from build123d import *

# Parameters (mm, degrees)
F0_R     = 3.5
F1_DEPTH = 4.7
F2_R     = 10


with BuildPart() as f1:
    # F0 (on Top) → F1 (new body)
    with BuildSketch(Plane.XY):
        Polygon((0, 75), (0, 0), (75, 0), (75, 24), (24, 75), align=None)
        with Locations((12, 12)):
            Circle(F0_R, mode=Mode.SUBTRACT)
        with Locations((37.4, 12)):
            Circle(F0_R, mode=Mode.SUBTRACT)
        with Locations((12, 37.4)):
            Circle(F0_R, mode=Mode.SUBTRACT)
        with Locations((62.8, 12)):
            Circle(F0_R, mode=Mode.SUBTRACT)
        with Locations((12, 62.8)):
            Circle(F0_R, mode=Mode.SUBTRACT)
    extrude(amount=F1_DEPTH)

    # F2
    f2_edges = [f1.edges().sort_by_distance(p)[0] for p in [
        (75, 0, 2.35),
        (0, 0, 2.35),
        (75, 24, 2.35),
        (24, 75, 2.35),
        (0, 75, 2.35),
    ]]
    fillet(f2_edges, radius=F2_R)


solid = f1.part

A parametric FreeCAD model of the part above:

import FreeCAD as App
import Part
import Sketcher
from FreeCAD import Vector
Q = App.Units.Quantity


def edges_at(feature, points):
    """Names of the edges that pass closest to the given points."""
    edges = feature.Shape.Edges
    near = lambda p: min(range(len(edges)), key=lambda i: edges[i].distToShape(Part.Vertex(*p))[0])
    return sorted({f"Edge{near(p) + 1}" for p in points})


def add_polygon(sketch, points):
    """Adds a closed chain of lines whose ends are joined by coincident constraints."""
    first, n = sketch.GeometryCount, len(points)
    for a, b in zip(points, points[1:] + points[:1]):
        sketch.addGeometry(Part.LineSegment(App.Vector(*a, 0), App.Vector(*b, 0)), False)
    for i in range(n):
        sketch.addConstraint(Sketcher.Constraint("Coincident", first + i, 2, first + (i + 1) % n, 1))

doc = App.newDocument("Part")
body = doc.addObject("PartDesign::Body", "Body")

# Sketch on XY plane
sketch1 = body.newObject("Sketcher::SketchObject", "Sketch")
sketch1.AttachmentSupport = (doc.getObject("XY_Plane"), [""])
sketch1.MapMode = "FlatFace"
add_polygon(sketch1, [(0, 75), (0, 0), (75, 0), (75, 24), (24, 75)])  # lines 0-4
sketch1.addGeometry(Part.Circle(Vector(12, 12, 0), Vector(0, 0, 1), 3.5), False)  # 5
sketch1.addGeometry(Part.Circle(Vector(37.4, 12, 0), Vector(0, 0, 1), 3.5), False)  # 6
sketch1.addGeometry(Part.Circle(Vector(62.8, 12, 0), Vector(0, 0, 1), 3.5), False)  # 7
sketch1.addGeometry(Part.Circle(Vector(12, 37.4, 0), Vector(0, 0, 1), 3.5), False)  # 8
sketch1.addGeometry(Part.Circle(Vector(12, 62.8, 0), Vector(0, 0, 1), 3.5), False)  # 9
sketch1.addConstraint([
    Sketcher.Constraint("Vertical", 0),
    Sketcher.Constraint("Horizontal", 1),
    Sketcher.Constraint("Vertical", 2),
    Sketcher.Constraint("Horizontal", 4),
    Sketcher.Constraint("Coincident", 0, 2, -1, 1),
    Sketcher.Constraint("Equal", 5, 6),
    Sketcher.Constraint("Equal", 6, 7),
    Sketcher.Constraint("Equal", 7, 8),
    Sketcher.Constraint("Equal", 8, 9),
    Sketcher.Constraint("Horizontal", 5, 3, 6, 3),
    Sketcher.Constraint("Horizontal", 6, 3, 7, 3),
    Sketcher.Constraint("Vertical", 5, 3, 8, 3),
    Sketcher.Constraint("Vertical", 8, 3, 9, 3),
    Sketcher.Constraint("Equal", 1, 0),
    Sketcher.Constraint("Equal", 4, 2),
    Sketcher.Constraint("Diameter", 5, Q("7 mm")),
    Sketcher.Constraint("DistanceX", 1, 1, 1, 2, Q("75 mm")),
    Sketcher.Constraint("DistanceX", 4, 2, 4, 1, Q("24 mm")),
    Sketcher.Constraint("DistanceX", -1, 1, 5, 3, Q("12 mm")),
    Sketcher.Constraint("DistanceY", -1, 1, 5, 3, Q("12 mm")),
    Sketcher.Constraint("DistanceX", -1, 1, 6, 3, Q("37.4 mm")),
    Sketcher.Constraint("DistanceX", -1, 1, 7, 3, Q("62.8 mm")),
    Sketcher.Constraint("DistanceY", -1, 1, 8, 3, Q("37.4 mm")),
    Sketcher.Constraint("DistanceY", -1, 1, 9, 3, Q("62.8 mm")),
])
pad1 = body.newObject("PartDesign::Pad", "Pad")
pad1.Profile = sketch1
pad1.Length = 4.7
doc.recompute()

fillet = body.newObject("PartDesign::Fillet", "Fillet")
fillet.Base = (pad1, edges_at(pad1, [
    (75, 0, 2.35),
    (0, 0, 2.35),
    (75, 24, 2.35),
    (24, 75, 2.35),
    (0, 75, 2.35),
]))
fillet.Radius = 10

doc.recompute()
